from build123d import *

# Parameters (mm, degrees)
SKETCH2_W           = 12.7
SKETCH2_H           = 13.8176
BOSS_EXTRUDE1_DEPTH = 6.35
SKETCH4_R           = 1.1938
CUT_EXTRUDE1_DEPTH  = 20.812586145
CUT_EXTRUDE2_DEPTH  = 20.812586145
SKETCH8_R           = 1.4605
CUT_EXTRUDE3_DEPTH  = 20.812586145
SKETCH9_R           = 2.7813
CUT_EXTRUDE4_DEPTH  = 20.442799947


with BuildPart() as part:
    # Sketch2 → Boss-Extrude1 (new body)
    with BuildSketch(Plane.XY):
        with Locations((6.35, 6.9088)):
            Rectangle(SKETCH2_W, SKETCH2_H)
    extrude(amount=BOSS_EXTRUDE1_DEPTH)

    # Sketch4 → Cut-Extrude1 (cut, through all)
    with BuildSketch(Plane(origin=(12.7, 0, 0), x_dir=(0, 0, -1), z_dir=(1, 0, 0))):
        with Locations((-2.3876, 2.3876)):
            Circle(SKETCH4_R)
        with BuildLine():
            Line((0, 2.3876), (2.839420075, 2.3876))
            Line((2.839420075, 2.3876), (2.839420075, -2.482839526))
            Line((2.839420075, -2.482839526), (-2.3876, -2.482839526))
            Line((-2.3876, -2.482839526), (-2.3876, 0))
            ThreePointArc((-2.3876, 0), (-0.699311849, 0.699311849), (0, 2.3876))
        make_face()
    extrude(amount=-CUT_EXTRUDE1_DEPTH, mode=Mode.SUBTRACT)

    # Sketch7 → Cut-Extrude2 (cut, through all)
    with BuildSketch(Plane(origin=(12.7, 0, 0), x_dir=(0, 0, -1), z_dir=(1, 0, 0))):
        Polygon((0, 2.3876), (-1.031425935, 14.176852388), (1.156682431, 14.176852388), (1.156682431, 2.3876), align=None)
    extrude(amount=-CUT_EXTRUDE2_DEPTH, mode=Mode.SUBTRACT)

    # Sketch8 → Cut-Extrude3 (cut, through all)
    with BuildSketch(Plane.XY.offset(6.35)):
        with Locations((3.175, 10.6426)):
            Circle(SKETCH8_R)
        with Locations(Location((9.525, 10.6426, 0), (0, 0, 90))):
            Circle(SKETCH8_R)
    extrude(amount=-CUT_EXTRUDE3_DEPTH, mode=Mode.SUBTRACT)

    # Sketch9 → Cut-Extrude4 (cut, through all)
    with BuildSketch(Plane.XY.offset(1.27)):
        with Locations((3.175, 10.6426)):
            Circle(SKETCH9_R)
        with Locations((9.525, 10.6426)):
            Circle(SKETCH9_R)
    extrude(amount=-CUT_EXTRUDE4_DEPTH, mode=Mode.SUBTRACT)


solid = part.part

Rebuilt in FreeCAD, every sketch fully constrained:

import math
import FreeCAD as App
import Part
import Sketcher

V = App.Vector
Q = App.Units.Quantity


def add_polygon(sketch, points):
    """Adds a closed chain of lines whose ends are joined by coincident constraints."""
    first, n = sketch.GeometryCount, len(points)
    for a, b in zip(points, points[1:] + points[:1]):
        sketch.addGeometry(Part.LineSegment(App.Vector(*a, 0), App.Vector(*b, 0)), False)
    for i in range(n):
        sketch.addConstraint(Sketcher.Constraint("Coincident", first + i, 2, first + (i + 1) % n, 1))

doc = App.newDocument("Part")
body = doc.addObject("PartDesign::Body", "Body")

# Sketch on XY plane
sketch1 = body.newObject("Sketcher::SketchObject", "Sketch")
sketch1.AttachmentSupport = (doc.getObject("XY_Plane"), [""])
sketch1.MapMode = "FlatFace"
add_polygon(sketch1, [(0, 14), (0, 0), (13, 0), (13, 14)])  # lines 0-3
sketch1.addConstraint(Sketcher.Constraint("Vertical", 0))
sketch1.addConstraint(Sketcher.Constraint("Horizontal", 1))
sketch1.addConstraint(Sketcher.Constraint("Vertical", 2))
sketch1.addConstraint(Sketcher.Constraint("Horizontal", 3))
sketch1.addConstraint(Sketcher.Constraint("Coincident", 0, 2, -1, 1))
sketch1.addConstraint(Sketcher.Constraint("DistanceX", 1, 1, 1, 2, Q("0.5 in")))
sketch1.addConstraint(Sketcher.Constraint("DistanceY", 0, 2, 0, 1, Q("0.544 in")))
pad1 = body.newObject("PartDesign::Pad", "Pad")
pad1.Profile = sketch1
pad1.Length = Q("0.25 in")

# Sketch on YZ plane
sketch2 = body.newObject("Sketcher::SketchObject", "Sketch001")
sketch2.AttachmentSupport = (doc.getObject("YZ_Plane"), [""])
sketch2.MapMode = "FlatFace"
sketch2.AttachmentOffset = App.Placement(V(0, 0, 0.5 * 25.4), App.Rotation())
sketch2.addGeometry(Part.Circle(V(2.4, 2.4, 0), V(0, 0, 1), 1.2), False)
sketch2.addGeometry(Part.LineSegment(V(2.4, -2.8, 0), V(2.4, 0, 0)), False)
sketch2.addGeometry(Part.ArcOfCircle(Part.Circle(V(2.4, 2.4, 0), V(0, 0, 1), 2.4), math.radians(180), math.radians(270)), False)
sketch2.addGeometry(Part.LineSegment(V(0, 2.4, 0), V(-2.5, 2.4, 0)), False)
sketch2.addGeometry(Part.LineSegment(V(-2.5, 2.4, 0), V(-2.5, -2.8, 0)), False)
sketch2.addGeometry(Part.LineSegment(V(-2.5, -2.8, 0), V(2.4, -2.8, 0)), False)
sketch2.addConstraint(Sketcher.Constraint("Coincident", 1, 2, 2, 2))
sketch2.addConstraint(Sketcher.Constraint("Coincident", 2, 1, 3, 1))
sketch2.addConstraint(Sketcher.Constraint("Coincident", 3, 2, 4, 1))
sketch2.addConstraint(Sketcher.Constraint("Coincident", 4, 2, 5, 1))
sketch2.addConstraint(Sketcher.Constraint("Coincident", 5, 2, 1, 1))
sketch2.addConstraint(Sketcher.Constraint("Vertical", 1))
sketch2.addConstraint(Sketcher.Constraint("Horizontal", 3))
sketch2.addConstraint(Sketcher.Constraint("Vertical", 4))
sketch2.addConstraint(Sketcher.Constraint("Horizontal", 5))
sketch2.addConstraint(Sketcher.Constraint("Coincident", 2, 3, 0, 3))
sketch2.addConstraint(Sketcher.Constraint("PointOnObject", 1, 2, -1))
sketch2.addConstraint(Sketcher.Constraint("PointOnObject", 2, 1, -2))
sketch2.addConstraint(Sketcher.Constraint("Horizontal", 0, 3, 2, 1))
sketch2.addConstraint(Sketcher.Constraint("Vertical", 2, 3, 1, 2))
sketch2.addConstraint(Sketcher.Constraint("Diameter", 0, Q("0.094 in")))
sketch2.addConstraint(Sketcher.Constraint("Radius", 2, Q("0.094 in")))
sketch2.addConstraint(Sketcher.Constraint("DistanceX", 3, 2, 3, 1, Q("2.48284 mm")))
sketch2.addConstraint(Sketcher.Constraint("DistanceY", 1, 1, 1, 2, Q("2.83942 mm")))
pocket1 = body.newObject("PartDesign::Pocket", "Pocket")
pocket1.Profile = sketch2
pocket1.Type = "ThroughAll"

# Sketch on YZ plane
sketch3 = body.newObject("Sketcher::SketchObject", "Sketch002")
sketch3.AttachmentSupport = (doc.getObject("YZ_Plane"), [""])
sketch3.MapMode = "FlatFace"
sketch3.AttachmentOffset = App.Placement(V(0, 0, 0.5 * 25.4), App.Rotation())
add_polygon(sketch3, [(14.2, 1), (2.4, 0), (2.4, -1.2), (14.2, -1.2)])  # lines 0-3
sketch3.addConstraint(Sketcher.Constraint("Vertical", 1))
sketch3.addConstraint(Sketcher.Constraint("Horizontal", 2))
sketch3.addConstraint(Sketcher.Constraint("Vertical", 3))
sketch3.addConstraint(Sketcher.Constraint("PointOnObject", 0, 2, -1))
sketch3.addConstraint(Sketcher.Constraint("Angle", 0, Q("-175 deg")))
sketch3.addConstraint(Sketcher.Constraint("DistanceX", -1, 1, 0, 2, Q("0.094 in")))
sketch3.addConstraint(Sketcher.Constraint("DistanceY", 3, 1, 3, 2, Q("2.188108 mm")))
sketch3.addConstraint(Sketcher.Constraint("DistanceX", 2, 1, 2, 2, Q("11.789252 mm")))
pocket2 = body.newObject("PartDesign::Pocket", "Pocket001")
pocket2.Profile = sketch3
pocket2.Type = "ThroughAll"

# Sketch on XY plane
sketch4 = body.newObject("Sketcher::SketchObject", "Sketch003")
sketch4.AttachmentSupport = (doc.getObject("XY_Plane"), [""])
sketch4.MapMode = "FlatFace"
sketch4.AttachmentOffset = App.Placement(V(0, 0, 0.25 * 25.4), App.Rotation())
sketch4.addGeometry(Part.Circle(V(3.2, 10.6, 0), V(0, 0, 1), 1.5), False)
sketch4.addGeometry(Part.Circle(V(9.5, 10.6, 0), V(0, 0, 1), 1.5), False)
sketch4.addConstraint(Sketcher.Constraint("Equal", 0, 1))
sketch4.addConstraint(Sketcher.Constraint("Horizontal", 0, 3, 1, 3))
sketch4.addConstraint(Sketcher.Constraint("Diameter", 0, Q("0.115 in")))
sketch4.addConstraint(Sketcher.Constraint("DistanceX", 0, 3, 1, 3, Q("0.25 in")))
sketch4.addConstraint(Sketcher.Constraint("DistanceX", -1, 1, 0, 3, Q("0.125 in")))
sketch4.addConstraint(Sketcher.Constraint("DistanceY", -1, 1, 0, 3, Q("0.419 in")))
pocket3 = body.newObject("PartDesign::Pocket", "Pocket002")
pocket3.Profile = sketch4
pocket3.Type = "ThroughAll"

# Sketch on XY plane
sketch5 = body.newObject("Sketcher::SketchObject", "Sketch004")
sketch5.AttachmentSupport = (doc.getObject("XY_Plane"), [""])
sketch5.MapMode = "FlatFace"
sketch5.AttachmentOffset = App.Placement(V(0, 0, 0.05 * 25.4), App.Rotation())
sketch5.addGeometry(Part.Circle(V(3.2, 10.6, 0), V(0, 0, 1), 2.8), False)
sketch5.addGeometry(Part.Circle(V(9.5, 10.6, 0), V(0, 0, 1), 2.8), False)
sketch5.addConstraint(Sketcher.Constraint("Equal", 0, 1))
sketch5.addConstraint(Sketcher.Constraint("Horizontal", 0, 3, 1, 3))
sketch5.addConstraint(Sketcher.Constraint("Diameter", 0, Q("0.219 in")))
sketch5.addConstraint(Sketcher.Constraint("DistanceX", 0, 3, 1, 3, Q("0.25 in")))
sketch5.addConstraint(Sketcher.Constraint("DistanceX", -1, 1, 0, 3, Q("0.125 in")))
sketch5.addConstraint(Sketcher.Constraint("DistanceY", -1, 1, 0, 3, Q("0.419 in")))
pocket4 = body.newObject("PartDesign::Pocket", "Pocket003")
pocket4.Profile = sketch5
pocket4.Type = "ThroughAll"

doc.recompute()
